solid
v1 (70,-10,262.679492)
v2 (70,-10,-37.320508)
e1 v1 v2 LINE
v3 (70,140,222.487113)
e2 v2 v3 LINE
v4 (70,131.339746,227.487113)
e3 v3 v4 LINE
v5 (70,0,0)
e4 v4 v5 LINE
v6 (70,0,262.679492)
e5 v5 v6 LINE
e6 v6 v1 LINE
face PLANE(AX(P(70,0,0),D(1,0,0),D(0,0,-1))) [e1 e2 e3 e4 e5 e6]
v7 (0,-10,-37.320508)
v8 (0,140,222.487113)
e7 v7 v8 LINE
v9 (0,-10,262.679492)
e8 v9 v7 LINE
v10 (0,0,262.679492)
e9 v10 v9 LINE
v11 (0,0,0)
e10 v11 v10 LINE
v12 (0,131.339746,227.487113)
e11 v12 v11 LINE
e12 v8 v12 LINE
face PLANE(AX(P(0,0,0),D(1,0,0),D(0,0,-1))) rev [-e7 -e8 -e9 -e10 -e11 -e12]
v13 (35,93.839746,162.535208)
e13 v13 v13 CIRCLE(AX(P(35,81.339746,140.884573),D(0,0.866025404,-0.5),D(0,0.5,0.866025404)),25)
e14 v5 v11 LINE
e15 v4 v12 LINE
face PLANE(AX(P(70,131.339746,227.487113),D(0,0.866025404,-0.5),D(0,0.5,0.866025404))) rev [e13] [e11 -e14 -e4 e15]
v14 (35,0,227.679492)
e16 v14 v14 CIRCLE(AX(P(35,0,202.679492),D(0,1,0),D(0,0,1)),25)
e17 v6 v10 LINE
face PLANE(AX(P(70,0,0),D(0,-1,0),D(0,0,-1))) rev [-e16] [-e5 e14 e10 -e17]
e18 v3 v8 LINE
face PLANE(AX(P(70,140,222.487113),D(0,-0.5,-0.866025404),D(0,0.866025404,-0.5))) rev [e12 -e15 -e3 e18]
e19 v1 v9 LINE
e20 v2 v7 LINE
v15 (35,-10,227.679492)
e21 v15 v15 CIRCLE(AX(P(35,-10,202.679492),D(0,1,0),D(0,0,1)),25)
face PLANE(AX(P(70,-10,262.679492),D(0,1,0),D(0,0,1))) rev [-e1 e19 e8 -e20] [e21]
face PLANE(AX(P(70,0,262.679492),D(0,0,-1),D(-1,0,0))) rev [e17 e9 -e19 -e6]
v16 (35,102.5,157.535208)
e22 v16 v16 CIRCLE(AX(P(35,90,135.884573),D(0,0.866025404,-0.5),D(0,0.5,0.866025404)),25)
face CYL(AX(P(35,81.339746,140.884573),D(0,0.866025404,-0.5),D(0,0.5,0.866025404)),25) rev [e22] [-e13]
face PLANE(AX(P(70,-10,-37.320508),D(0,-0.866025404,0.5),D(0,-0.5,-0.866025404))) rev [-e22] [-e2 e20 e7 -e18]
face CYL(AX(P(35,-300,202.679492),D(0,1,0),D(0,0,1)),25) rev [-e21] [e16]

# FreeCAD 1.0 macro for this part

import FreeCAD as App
import Part
import Sketcher
Q = App.Units.Quantity


def add_polygon(sketch, points):
    """Adds a closed chain of lines whose ends are joined by coincident constraints."""
    first, n = sketch.GeometryCount, len(points)
    for a, b in zip(points, points[1:] + points[:1]):
        sketch.addGeometry(Part.LineSegment(App.Vector(*a, 0), App.Vector(*b, 0)), False)
    for i in range(n):
        sketch.addConstraint(Sketcher.Constraint("Coincident", first + i, 2, first + (i + 1) % n, 1))

doc = App.newDocument("Part")
body = doc.addObject("PartDesign::Body", "Body")

sketch1 = body.newObject("Sketcher::SketchObject", "Sketch")
sketch1.AttachmentSupport = (doc.getObject("YZ_Plane"), [""])
sketch1.MapMode = "FlatFace"
add_polygon(sketch1, [(131, 227), (0, 0), (0, 263), (-10, 263), (-10, -37), (140, 222)])
sketch1.addConstraint(Sketcher.Constraint("Vertical", 1))
sketch1.addConstraint(Sketcher.Constraint("Horizontal", 2))
sketch1.addConstraint(Sketcher.Constraint("Vertical", 3))
sketch1.addConstraint(Sketcher.Constraint("Coincident", 0, 2, -1, 1))
sketch1.addConstraint(Sketcher.Constraint("Parallel", 0, 4))
sketch1.addConstraint(Sketcher.Constraint("Perpendicular", 4, 5))
sketch1.addConstraint(Sketcher.Constraint("DistanceX", 2, 2, 2, 1, Q("10 mm")))
sketch1.addConstraint(Sketcher.Constraint("DistanceY", 3, 2, 3, 1, Q("300 mm")))
sketch1.addConstraint(Sketcher.Constraint("Angle", 0, Q("-120 deg")))
sketch1.addConstraint(Sketcher.Constraint("Distance", 4, Q("300 mm")))
sketch1.addConstraint(Sketcher.Constraint("Distance", 5, Q("10 mm")))
pad1 = body.newObject("PartDesign::Pad", "Pad")
pad1.Profile = sketch1
pad1.Length = 70

sketch2 = body.newObject("Sketcher::SketchObject", "Sketch001")
sketch2.Placement = App.Placement(App.Vector(0, 8.660254, -5), App.Rotation(App.Vector(1, 0, 0), App.Vector(0, -0.5, -0.866025404), App.Vector(0, 0.866025404, -0.5), "ZXY"))
sketch2.addGeometry(Part.Circle(App.Vector(35, -163, 0), App.Vector(0, 0, 1), 25), False)
sketch2.addConstraint(Sketcher.Constraint("Diameter", 0, Q("50 mm")))
sketch2.addConstraint(Sketcher.Constraint("DistanceX", -1, 1, 0, 3, Q("35 mm")))
sketch2.addConstraint(Sketcher.Constraint("DistanceY", 0, 3, -1, 1, Q("162.679492 mm")))
pocket1 = body.newObject("PartDesign::Pocket", "Pocket")
pocket1.Profile = sketch2
pocket1.Length = 10

sketch3 = body.newObject("Sketcher::SketchObject", "Sketch002")
sketch3.AttachmentSupport = (doc.getObject("XZ_Plane"), [""])
sketch3.MapMode = "FlatFace"
sketch3.addGeometry(Part.Circle(App.Vector(35, 203, 0), App.Vector(0, 0, 1), 25), False)
sketch3.addConstraint(Sketcher.Constraint("Diameter", 0, Q("50 mm")))
sketch3.addConstraint(Sketcher.Constraint("DistanceX", -1, 1, 0, 3, Q("35 mm")))
sketch3.addConstraint(Sketcher.Constraint("DistanceY", -1, 1, 0, 3, Q("202.679492 mm")))
pocket2 = body.newObject("PartDesign::Pocket", "Pocket001")
pocket2.Profile = sketch3
pocket2.Length = 300
pocket2.Reversed = True

doc.recompute()
